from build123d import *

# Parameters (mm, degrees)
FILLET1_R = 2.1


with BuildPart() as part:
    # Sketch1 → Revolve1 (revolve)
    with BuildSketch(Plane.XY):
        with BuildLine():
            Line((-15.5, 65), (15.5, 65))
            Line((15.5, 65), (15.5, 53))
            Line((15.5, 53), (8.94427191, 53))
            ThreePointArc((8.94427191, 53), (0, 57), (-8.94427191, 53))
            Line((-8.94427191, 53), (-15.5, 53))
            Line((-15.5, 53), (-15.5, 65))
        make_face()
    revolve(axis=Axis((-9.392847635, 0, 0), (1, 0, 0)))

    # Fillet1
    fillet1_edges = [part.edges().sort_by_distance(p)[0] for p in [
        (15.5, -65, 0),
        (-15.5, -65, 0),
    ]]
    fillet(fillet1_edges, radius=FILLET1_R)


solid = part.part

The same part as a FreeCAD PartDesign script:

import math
import FreeCAD as App
import Part
import Sketcher

V = App.Vector
Q = App.Units.Quantity


def edges_at(feature, points):
    """Names of the edges that pass closest to the given points."""
    edges = feature.Shape.Edges
    near = lambda p: min(range(len(edges)), key=lambda i: edges[i].distToShape(Part.Vertex(*p))[0])
    return sorted({f"Edge{near(p) + 1}" for p in points})

doc = App.newDocument("Part")
body = doc.addObject("PartDesign::Body", "Body")

sketch1 = body.newObject("Sketcher::SketchObject", "Sketch")
sketch1.AttachmentSupport = (doc.getObject("XY_Plane"), [""])
sketch1.MapMode = "FlatFace"
sketch1.addGeometry(Part.LineSegment(V(16, 65, 0), V(-16, 65, 0)), False)
sketch1.addGeometry(Part.LineSegment(V(-16, 65, 0), V(-16, 53, 0)), False)
sketch1.addGeometry(Part.LineSegment(V(-16, 53, 0), V(-9, 53, 0)), False)
sketch1.addGeometry(Part.ArcOfCircle(Part.Circle(V(0, 45, 0), V(0, 0, 1), 12), math.radians(42), math.radians(138)), False)
sketch1.addGeometry(Part.LineSegment(V(9, 53, 0), V(16, 53, 0)), False)
sketch1.addGeometry(Part.LineSegment(V(16, 53, 0), V(16, 65, 0)), False)
sketch1.addConstraint(Sketcher.Constraint("Coincident", 0, 2, 1, 1))
sketch1.addConstraint(Sketcher.Constraint("Coincident", 1, 2, 2, 1))
sketch1.addConstraint(Sketcher.Constraint("Coincident", 2, 2, 3, 2))
sketch1.addConstraint(Sketcher.Constraint("Coincident", 3, 1, 4, 1))
sketch1.addConstraint(Sketcher.Constraint("Coincident", 4, 2, 5, 1))
sketch1.addConstraint(Sketcher.Constraint("Coincident", 5, 2, 0, 1))
sketch1.addConstraint(Sketcher.Constraint("Horizontal", 0))
sketch1.addConstraint(Sketcher.Constraint("Vertical", 1))
sketch1.addConstraint(Sketcher.Constraint("Horizontal", 2))
sketch1.addConstraint(Sketcher.Constraint("Horizontal", 4))
sketch1.addConstraint(Sketcher.Constraint("Vertical", 5))
sketch1.addConstraint(Sketcher.Constraint("Symmetric", 2, 2, 3, 1, -2))
sketch1.addConstraint(Sketcher.Constraint("Equal", 2, 4))
sketch1.addConstraint(Sketcher.Constraint("Radius", 3, Q("12 mm")))
sketch1.addConstraint(Sketcher.Constraint("DistanceX", 0, 2, 0, 1, Q("31 mm")))
sketch1.addConstraint(Sketcher.Constraint("DistanceY", 1, 2, 1, 1, Q("12 mm")))
sketch1.addConstraint(Sketcher.Constraint("DistanceY", -1, 1, 3, 3, Q("45 mm")))
sketch1.addConstraint(Sketcher.Constraint("DistanceY", -1, 1, 0, 2, Q("65 mm")))
revolution = body.newObject("PartDesign::Revolution", "Revolution")
revolution.Profile = sketch1
revolution.ReferenceAxis = (sketch1, ["H_Axis"])
revolution.Angle = 360
doc.recompute()

fillet = body.newObject("PartDesign::Fillet", "Fillet")
fillet.Base = (revolution, edges_at(revolution, [(15.5, -65, 0), (-15.5, -65, 0)]))
fillet.Radius = 2.1

doc.recompute()
